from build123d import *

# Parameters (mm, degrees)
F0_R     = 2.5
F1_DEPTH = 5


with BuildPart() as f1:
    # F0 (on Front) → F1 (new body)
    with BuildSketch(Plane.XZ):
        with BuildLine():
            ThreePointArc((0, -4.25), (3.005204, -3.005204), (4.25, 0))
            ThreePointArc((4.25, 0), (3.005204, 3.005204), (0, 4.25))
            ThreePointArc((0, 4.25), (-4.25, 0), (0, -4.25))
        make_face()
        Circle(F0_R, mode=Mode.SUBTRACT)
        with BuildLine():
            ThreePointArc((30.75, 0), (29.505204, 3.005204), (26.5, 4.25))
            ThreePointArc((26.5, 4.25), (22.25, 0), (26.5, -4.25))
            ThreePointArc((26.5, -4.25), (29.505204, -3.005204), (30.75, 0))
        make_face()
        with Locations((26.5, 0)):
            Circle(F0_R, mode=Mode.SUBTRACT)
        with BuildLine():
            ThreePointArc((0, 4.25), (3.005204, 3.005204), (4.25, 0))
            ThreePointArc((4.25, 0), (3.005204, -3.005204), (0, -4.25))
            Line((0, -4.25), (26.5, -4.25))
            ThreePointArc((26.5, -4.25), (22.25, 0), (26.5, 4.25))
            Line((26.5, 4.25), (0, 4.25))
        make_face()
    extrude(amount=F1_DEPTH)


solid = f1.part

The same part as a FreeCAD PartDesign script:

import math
import FreeCAD as App
import Part
import Sketcher
Q = App.Units.Quantity

doc = App.newDocument("Part")
params = doc.addObject("Spreadsheet::Sheet", "Params")
for row, (alias, value) in enumerate([
    ("sketch1_diameter", "5 mm"),
    ("sketch1_radius", "4.25 mm"),
    ("sketch1_width", "26.5 mm"),
    ("pad1_length", "5 mm"),
], start=1):
    params.set(f"A{row}", alias)
    params.set(f"B{row}", "=" + value)
    params.setAlias(f"B{row}", alias)

body = doc.addObject("PartDesign::Body", "Body")

sketch1 = body.newObject("Sketcher::SketchObject", "Sketch")
sketch1.AttachmentSupport = (doc.getObject("XZ_Plane"), [""])
sketch1.MapMode = "FlatFace"
sketch1.addGeometry([
    Part.ArcOfCircle(Part.Circle(App.Vector(0, 0, 0), App.Vector(0, 0, 1), 4.25), math.radians(90), math.radians(270)),
    Part.LineSegment(App.Vector(0, -4.25, 0), App.Vector(26.5, -4.25, 0)),
    Part.ArcOfCircle(Part.Circle(App.Vector(26.500001, -0.000001, 0), App.Vector(0, 0, 1), 4.249999), math.radians(-90.000008), math.radians(0.000008)),
    Part.ArcOfCircle(Part.Circle(App.Vector(26.500001, 0.000001, 0), App.Vector(0, 0, 1), 4.249999), math.radians(-0.000008), math.radians(90.000008)),
    Part.LineSegment(App.Vector(26.5, 4.25, 0), App.Vector(0, 4.25, 0)),
    Part.Circle(App.Vector(0, 0, 0), App.Vector(0, 0, 1), 2.5),
    Part.Circle(App.Vector(26.5, 0, 0), App.Vector(0, 0, 1), 2.5),
], False)
sketch1.addConstraint([
    Sketcher.Constraint("Tangent", 0, 2, 1, 1),
    Sketcher.Constraint("Tangent", 1, 2, 2, 1),
    Sketcher.Constraint("Tangent", 2, 2, 3, 1),
    Sketcher.Constraint("Tangent", 3, 2, 4, 1),
    Sketcher.Constraint("Tangent", 4, 2, 0, 1),
    Sketcher.Constraint("Horizontal", 1),
    Sketcher.Constraint("Horizontal", 4),
    Sketcher.Constraint("Coincident", 0, 3, -1, 1),
    Sketcher.Constraint("Coincident", 5, 3, -1, 1),
    Sketcher.Constraint("Coincident", 6, 3, 2, 3),
    Sketcher.Constraint("Equal", 0, 2),
    Sketcher.Constraint("Equal", 5, 6),
    Sketcher.Constraint("PointOnObject", 2, 2, -1),
    Sketcher.Constraint("Diameter", 5, Q("5 mm")),
    Sketcher.Constraint("Radius", 0, Q("4.25 mm")),
    Sketcher.Constraint("DistanceX", 1, 1, 1, 2, Q("26.5 mm")),
])
sketch1.setExpression("Constraints[13]", "Params.sketch1_diameter")
sketch1.setExpression("Constraints[14]", "Params.sketch1_radius")
sketch1.setExpression("Constraints[15]", "Params.sketch1_width")
pad1 = body.newObject("PartDesign::Pad", "Pad")
pad1.Profile = sketch1
pad1.setExpression("Length", "Params.pad1_length")

doc.recompute()
